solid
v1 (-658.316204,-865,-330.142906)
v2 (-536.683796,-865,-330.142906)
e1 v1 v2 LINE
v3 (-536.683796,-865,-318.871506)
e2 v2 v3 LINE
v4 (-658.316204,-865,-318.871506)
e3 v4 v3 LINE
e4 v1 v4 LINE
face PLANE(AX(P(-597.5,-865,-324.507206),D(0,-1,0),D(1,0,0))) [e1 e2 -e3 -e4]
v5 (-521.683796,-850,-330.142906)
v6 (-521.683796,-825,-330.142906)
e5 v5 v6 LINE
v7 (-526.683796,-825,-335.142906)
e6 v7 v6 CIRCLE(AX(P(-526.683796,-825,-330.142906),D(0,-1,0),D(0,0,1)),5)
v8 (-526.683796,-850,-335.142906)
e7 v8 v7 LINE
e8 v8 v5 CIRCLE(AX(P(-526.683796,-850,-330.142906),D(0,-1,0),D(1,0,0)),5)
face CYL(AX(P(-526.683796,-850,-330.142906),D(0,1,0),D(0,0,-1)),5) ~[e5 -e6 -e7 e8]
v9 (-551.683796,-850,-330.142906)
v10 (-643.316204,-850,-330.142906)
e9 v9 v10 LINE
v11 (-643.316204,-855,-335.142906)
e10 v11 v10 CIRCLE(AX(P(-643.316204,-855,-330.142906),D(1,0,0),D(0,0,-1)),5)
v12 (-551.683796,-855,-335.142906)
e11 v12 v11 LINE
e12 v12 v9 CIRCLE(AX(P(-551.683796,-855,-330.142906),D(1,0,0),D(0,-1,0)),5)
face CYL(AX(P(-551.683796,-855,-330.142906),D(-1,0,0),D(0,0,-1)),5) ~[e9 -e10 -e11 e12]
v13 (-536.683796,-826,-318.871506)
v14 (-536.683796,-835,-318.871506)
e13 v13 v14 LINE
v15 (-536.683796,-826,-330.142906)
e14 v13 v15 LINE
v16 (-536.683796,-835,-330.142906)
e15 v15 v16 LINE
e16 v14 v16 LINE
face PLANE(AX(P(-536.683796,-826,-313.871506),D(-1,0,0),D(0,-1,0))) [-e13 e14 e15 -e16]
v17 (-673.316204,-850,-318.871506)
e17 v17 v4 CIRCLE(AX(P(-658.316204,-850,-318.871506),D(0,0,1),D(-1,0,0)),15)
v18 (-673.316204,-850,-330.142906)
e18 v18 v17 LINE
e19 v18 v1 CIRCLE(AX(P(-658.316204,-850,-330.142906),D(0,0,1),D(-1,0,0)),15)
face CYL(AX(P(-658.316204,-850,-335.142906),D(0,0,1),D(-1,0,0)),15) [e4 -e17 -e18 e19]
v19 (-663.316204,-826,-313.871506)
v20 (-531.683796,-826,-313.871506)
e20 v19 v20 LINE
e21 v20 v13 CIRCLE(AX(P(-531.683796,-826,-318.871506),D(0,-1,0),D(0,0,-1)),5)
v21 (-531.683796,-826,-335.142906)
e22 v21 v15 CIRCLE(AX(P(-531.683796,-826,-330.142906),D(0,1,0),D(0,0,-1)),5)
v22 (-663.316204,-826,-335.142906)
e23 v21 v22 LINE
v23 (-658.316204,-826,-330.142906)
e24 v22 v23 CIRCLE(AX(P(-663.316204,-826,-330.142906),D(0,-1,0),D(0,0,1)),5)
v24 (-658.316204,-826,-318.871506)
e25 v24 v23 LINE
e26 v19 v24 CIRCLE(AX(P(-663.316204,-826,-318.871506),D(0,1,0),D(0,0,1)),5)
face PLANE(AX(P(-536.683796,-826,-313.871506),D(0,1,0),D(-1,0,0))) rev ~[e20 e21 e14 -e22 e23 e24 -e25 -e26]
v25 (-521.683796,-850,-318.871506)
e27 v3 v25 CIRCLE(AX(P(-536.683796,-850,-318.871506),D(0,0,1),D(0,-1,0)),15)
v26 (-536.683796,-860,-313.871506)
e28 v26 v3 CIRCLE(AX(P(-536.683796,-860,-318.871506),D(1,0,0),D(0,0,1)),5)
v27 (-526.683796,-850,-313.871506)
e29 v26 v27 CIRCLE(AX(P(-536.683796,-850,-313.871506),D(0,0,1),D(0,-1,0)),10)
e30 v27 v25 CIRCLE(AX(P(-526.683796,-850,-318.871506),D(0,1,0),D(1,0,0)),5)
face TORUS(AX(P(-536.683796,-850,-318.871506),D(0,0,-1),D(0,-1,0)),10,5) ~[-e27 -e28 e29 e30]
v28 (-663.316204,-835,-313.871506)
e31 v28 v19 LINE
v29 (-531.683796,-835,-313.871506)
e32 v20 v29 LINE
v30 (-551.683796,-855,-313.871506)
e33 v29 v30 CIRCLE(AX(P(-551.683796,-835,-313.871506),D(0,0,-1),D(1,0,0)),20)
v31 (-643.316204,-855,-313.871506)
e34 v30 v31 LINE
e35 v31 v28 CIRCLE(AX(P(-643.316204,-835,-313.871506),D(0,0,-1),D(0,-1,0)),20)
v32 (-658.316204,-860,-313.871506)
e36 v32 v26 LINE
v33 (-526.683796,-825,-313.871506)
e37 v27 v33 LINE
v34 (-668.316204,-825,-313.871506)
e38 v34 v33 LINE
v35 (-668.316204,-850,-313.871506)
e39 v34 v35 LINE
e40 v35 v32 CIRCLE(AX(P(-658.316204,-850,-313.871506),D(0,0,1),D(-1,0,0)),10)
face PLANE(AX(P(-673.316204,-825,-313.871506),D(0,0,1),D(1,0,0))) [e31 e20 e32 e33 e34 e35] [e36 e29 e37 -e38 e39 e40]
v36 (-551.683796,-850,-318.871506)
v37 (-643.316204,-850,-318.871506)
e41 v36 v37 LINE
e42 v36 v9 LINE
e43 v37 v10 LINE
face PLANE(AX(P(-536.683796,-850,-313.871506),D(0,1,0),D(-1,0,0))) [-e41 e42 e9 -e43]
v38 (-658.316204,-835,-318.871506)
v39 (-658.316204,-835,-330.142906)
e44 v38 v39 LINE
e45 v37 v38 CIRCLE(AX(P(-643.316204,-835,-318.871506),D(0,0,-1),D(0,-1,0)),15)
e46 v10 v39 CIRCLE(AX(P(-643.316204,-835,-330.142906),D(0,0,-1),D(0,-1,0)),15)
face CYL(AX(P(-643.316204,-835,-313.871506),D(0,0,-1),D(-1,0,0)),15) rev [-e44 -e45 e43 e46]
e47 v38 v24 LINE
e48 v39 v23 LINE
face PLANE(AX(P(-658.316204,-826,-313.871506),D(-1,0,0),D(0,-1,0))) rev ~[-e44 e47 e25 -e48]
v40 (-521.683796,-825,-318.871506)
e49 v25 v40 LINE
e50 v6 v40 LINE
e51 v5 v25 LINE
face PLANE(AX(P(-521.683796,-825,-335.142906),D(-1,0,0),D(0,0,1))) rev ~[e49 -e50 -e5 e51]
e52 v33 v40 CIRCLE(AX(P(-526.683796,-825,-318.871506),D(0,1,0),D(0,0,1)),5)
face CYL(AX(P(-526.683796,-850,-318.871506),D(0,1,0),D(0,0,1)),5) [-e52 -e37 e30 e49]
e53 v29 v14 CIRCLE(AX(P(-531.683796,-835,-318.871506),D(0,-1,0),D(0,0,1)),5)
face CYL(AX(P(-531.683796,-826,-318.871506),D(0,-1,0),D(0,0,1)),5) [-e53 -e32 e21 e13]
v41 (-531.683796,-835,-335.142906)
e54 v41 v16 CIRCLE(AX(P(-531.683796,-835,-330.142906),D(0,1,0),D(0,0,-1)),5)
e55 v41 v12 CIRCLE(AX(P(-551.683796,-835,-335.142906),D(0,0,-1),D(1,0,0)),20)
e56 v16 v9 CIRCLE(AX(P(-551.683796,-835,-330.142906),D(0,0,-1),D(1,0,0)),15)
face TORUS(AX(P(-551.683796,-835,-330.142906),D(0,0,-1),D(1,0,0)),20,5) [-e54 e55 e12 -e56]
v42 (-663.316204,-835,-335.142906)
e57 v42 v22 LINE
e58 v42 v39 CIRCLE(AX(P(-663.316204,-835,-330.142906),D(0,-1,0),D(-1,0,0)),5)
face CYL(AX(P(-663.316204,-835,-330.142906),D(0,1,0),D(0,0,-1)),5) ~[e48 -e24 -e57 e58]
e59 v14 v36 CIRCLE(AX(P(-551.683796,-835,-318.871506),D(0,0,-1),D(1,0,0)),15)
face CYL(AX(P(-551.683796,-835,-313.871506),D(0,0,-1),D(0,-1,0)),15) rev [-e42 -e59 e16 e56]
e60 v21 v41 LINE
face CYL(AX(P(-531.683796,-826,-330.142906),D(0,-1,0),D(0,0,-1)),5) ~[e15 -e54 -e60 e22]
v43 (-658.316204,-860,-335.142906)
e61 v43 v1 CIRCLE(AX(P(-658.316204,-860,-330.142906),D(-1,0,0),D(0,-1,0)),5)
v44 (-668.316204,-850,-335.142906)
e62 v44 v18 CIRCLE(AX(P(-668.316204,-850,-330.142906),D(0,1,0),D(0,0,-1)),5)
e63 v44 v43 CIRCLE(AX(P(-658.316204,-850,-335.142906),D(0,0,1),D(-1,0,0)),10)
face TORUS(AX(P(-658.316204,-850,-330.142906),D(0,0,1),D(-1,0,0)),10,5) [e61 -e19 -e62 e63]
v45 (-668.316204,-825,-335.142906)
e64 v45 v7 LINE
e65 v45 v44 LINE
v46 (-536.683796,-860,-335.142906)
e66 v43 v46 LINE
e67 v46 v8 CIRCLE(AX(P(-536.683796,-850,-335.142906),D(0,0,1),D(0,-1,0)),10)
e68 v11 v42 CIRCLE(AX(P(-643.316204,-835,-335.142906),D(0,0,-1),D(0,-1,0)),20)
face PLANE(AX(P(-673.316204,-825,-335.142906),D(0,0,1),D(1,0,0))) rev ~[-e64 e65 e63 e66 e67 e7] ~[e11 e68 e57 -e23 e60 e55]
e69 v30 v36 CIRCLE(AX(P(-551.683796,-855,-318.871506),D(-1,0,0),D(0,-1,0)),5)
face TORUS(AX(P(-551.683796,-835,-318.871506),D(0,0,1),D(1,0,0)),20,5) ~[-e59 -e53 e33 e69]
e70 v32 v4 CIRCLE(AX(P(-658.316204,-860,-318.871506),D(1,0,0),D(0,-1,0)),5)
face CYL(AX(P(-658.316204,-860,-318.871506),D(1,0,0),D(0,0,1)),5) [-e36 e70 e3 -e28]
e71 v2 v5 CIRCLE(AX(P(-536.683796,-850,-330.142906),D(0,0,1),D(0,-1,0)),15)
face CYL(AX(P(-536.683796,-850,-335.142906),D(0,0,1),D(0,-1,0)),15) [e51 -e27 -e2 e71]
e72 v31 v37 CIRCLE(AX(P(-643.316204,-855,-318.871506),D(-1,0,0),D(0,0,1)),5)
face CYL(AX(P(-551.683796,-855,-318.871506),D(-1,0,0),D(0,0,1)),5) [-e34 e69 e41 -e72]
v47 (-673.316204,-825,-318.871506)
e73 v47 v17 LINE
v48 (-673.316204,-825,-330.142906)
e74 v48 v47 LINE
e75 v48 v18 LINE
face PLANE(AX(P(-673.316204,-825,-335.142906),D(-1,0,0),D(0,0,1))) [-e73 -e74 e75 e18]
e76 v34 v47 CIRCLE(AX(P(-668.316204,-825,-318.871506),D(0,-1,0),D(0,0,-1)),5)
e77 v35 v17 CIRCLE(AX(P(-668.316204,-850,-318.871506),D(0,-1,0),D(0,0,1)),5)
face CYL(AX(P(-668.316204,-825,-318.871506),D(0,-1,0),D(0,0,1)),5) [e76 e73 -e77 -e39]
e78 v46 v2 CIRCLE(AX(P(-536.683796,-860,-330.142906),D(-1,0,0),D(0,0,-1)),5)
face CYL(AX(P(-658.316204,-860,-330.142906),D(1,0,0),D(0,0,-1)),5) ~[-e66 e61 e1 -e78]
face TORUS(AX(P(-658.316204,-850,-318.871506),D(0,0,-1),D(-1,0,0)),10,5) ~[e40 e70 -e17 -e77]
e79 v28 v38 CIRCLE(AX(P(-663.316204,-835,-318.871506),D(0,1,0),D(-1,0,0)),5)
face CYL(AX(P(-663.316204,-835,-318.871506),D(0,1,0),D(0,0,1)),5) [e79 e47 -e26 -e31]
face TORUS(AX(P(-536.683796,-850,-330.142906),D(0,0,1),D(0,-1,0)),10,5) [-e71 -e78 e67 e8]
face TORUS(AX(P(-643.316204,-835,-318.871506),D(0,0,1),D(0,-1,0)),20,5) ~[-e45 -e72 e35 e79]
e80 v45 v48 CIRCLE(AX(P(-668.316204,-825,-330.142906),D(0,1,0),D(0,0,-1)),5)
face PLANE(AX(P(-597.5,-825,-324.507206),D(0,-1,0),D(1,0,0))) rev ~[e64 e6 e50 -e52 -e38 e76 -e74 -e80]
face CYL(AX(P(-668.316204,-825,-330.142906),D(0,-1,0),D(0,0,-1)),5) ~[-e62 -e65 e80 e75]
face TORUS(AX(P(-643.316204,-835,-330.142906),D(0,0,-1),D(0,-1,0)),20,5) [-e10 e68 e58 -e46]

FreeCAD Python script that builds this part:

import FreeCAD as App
import Part
import Sketcher
from FreeCAD import Vector


def edges_at(feature, points):
    """Names of the edges that pass closest to the given points."""
    edges = feature.Shape.Edges
    near = lambda p: min(range(len(edges)), key=lambda i: edges[i].distToShape(Part.Vertex(*p))[0])
    return sorted({f"Edge{near(p) + 1}" for p in points})

doc = App.newDocument("Part")
body = doc.addObject("PartDesign::Body", "Body")

# Sketch on XZ plane
sketch1 = doc.addObject("Sketcher::SketchObject", "Sketch")
body.addObject(sketch1)
sketch1.AttachmentSupport = (doc.XZ_Plane, [""])
sketch1.MapMode = "FlatFace"
sketch1.AttachmentOffset = App.Placement(Vector(0, 0, 825), App.Rotation())
sketch1.addGeometry([
    Part.LineSegment(Vector(-673.316204, -313.871506, 0), Vector(-673.316204, -335.142906, 0)),
    Part.LineSegment(Vector(-673.316204, -335.142906, 0), Vector(-521.683796, -335.142906, 0)),
    Part.LineSegment(Vector(-521.683796, -335.142906, 0), Vector(-521.683796, -313.871506, 0)),
    Part.LineSegment(Vector(-521.683796, -313.871506, 0), Vector(-673.316204, -313.871506, 0)),
], False)
sketch1.addConstraint([
    Sketcher.Constraint("Coincident", 0, 2, 1, 1),
    Sketcher.Constraint("Coincident", 1, 2, 2, 1),
    Sketcher.Constraint("Coincident", 2, 2, 3, 1),
    Sketcher.Constraint("Coincident", 3, 2, 0, 1),
    Sketcher.Constraint("Vertical", 0),
    Sketcher.Constraint("Horizontal", 1),
    Sketcher.Constraint("Vertical", 2),
    Sketcher.Constraint("Horizontal", 3),
    Sketcher.Constraint("DistanceY", 0, 2, 0, 1, 21.2714),
    Sketcher.Constraint("DistanceX", 1, 1, 1, 2, 151.632408),
    Sketcher.Constraint("DistanceX", 0, 2, -1, 1, 673.316204),
    Sketcher.Constraint("DistanceY", 0, 2, -1, 1, 335.142906),
])
pad1 = doc.addObject("PartDesign::Pad", "Pad")
body.addObject(pad1)
pad1.Profile = sketch1
pad1.Length = 40

# Sketch on XY plane
sketch2 = doc.addObject("Sketcher::SketchObject", "Sketch001")
body.addObject(sketch2)
sketch2.AttachmentSupport = (doc.XY_Plane, [""])
sketch2.MapMode = "FlatFace"
sketch2.AttachmentOffset = App.Placement(Vector(0, 0, -313.871506), App.Rotation())
sketch2.addGeometry([
    Part.LineSegment(Vector(-536.683796, -850, 0), Vector(-536.683796, -826, 0)),
    Part.LineSegment(Vector(-536.683796, -826, 0), Vector(-658.316204, -826, 0)),
    Part.LineSegment(Vector(-658.316204, -826, 0), Vector(-658.316204, -850, 0)),
    Part.LineSegment(Vector(-658.316204, -850, 0), Vector(-536.683796, -850, 0)),
], False)
sketch2.addConstraint([
    Sketcher.Constraint("Coincident", 0, 2, 1, 1),
    Sketcher.Constraint("Coincident", 1, 2, 2, 1),
    Sketcher.Constraint("Coincident", 2, 2, 3, 1),
    Sketcher.Constraint("Coincident", 3, 2, 0, 1),
    Sketcher.Constraint("Vertical", 0),
    Sketcher.Constraint("Horizontal", 1),
    Sketcher.Constraint("Vertical", 2),
    Sketcher.Constraint("Horizontal", 3),
    Sketcher.Constraint("DistanceY", 0, 1, 0, 2, 24.0),
    Sketcher.Constraint("DistanceY", 0, 2, -1, 1, 826.0),
    Sketcher.Constraint("DistanceX", 1, 2, 1, 1, 121.632408),
    Sketcher.Constraint("DistanceX", 0, 2, -1, 1, 536.683796),
])
pocket1 = doc.addObject("PartDesign::Pocket", "Pocket")
body.addObject(pocket1)
pocket1.Profile = sketch2
pocket1.Type = "ThroughAll"
doc.recompute()

fillet = doc.addObject("PartDesign::Fillet", "Fillet")
body.addObject(fillet)
fillet.Base = (pocket1, edges_at(pocket1, [
    (-521.684, -865, -324.507),
    (-673.316, -865, -324.507),
    (-536.684, -850, -324.507),
    (-658.316, -850, -324.507),
]))
fillet.Radius = 15
doc.recompute()

fillet2 = doc.addObject("PartDesign::Fillet", "Fillet001")
body.addObject(fillet2)
fillet2.Base = (fillet, edges_at(fillet, [
    (-597.5, -865, -313.872),
    (-597.5, -865, -335.143),
    (-597.5, -850, -313.872),
    (-597.5, -850, -335.143),
]))
fillet2.Radius = 5

doc.recompute()
